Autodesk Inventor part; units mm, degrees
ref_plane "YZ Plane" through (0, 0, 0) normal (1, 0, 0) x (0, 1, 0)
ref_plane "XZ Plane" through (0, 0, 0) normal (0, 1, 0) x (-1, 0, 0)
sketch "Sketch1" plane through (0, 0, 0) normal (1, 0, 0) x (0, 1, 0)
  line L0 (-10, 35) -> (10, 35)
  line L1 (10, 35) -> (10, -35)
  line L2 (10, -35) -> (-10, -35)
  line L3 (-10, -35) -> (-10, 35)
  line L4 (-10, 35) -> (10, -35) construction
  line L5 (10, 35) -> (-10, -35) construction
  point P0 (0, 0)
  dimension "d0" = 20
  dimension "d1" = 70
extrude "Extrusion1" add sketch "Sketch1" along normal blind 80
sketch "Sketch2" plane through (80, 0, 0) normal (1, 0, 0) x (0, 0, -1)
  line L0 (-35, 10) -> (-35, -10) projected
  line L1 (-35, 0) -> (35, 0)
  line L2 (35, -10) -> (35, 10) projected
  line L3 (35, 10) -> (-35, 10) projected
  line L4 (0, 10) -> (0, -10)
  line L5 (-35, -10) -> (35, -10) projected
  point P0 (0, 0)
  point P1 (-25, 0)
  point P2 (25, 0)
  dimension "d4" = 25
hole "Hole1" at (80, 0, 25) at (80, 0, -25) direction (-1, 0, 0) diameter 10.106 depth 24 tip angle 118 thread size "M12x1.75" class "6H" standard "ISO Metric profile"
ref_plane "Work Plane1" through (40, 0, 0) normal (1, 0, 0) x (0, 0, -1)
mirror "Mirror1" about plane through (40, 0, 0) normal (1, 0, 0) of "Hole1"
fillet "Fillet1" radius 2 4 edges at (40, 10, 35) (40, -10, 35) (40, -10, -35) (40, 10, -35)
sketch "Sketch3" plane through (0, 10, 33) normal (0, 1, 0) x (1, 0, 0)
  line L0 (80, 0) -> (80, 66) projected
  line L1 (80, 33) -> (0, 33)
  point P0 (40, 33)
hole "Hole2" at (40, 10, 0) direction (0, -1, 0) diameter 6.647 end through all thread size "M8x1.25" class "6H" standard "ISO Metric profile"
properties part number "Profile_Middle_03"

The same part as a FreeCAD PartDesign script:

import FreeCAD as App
import Part
import Sketcher


def edges_at(feature, points):
    """Names of the edges that pass closest to the given points."""
    edges = feature.Shape.Edges
    near = lambda p: min(range(len(edges)), key=lambda i: edges[i].distToShape(Part.Vertex(*p))[0])
    return sorted({f"Edge{near(p) + 1}" for p in points})

doc = App.newDocument("Part")
body = doc.addObject("PartDesign::Body", "Body")

# Sketch on YZ plane
sketch1 = body.newObject("Sketcher::SketchObject", "Sketch")
sketch1.AttachmentSupport = (doc.getObject("YZ_Plane"), [""])
sketch1.MapMode = "FlatFace"
sketch1.addGeometry([
    Part.LineSegment(App.Vector(10, 35, 0), App.Vector(-10, 35, 0)),
    Part.LineSegment(App.Vector(-10, 35, 0), App.Vector(-10, -35, 0)),
    Part.LineSegment(App.Vector(-10, -35, 0), App.Vector(10, -35, 0)),
    Part.LineSegment(App.Vector(10, -35, 0), App.Vector(10, 35, 0)),
], False)
sketch1.addConstraint([
    Sketcher.Constraint("Coincident", 0, 2, 1, 1),
    Sketcher.Constraint("Coincident", 1, 2, 2, 1),
    Sketcher.Constraint("Coincident", 2, 2, 3, 1),
    Sketcher.Constraint("Coincident", 3, 2, 0, 1),
    Sketcher.Constraint("Horizontal", 0),
    Sketcher.Constraint("Vertical", 1),
    Sketcher.Constraint("Horizontal", 2),
    Sketcher.Constraint("Vertical", 3),
    Sketcher.Constraint("Symmetric", 0, 2, 2, 2, -1, 1),
    Sketcher.Constraint("DistanceX", 0, 2, 0, 1, 20.0),
    Sketcher.Constraint("DistanceY", 1, 2, 1, 1, 70.0),
])
pad1 = body.newObject("PartDesign::Pad", "Pad")
pad1.Profile = sketch1
pad1.Length = 80

# Sketch on YZ plane
sketch2 = body.newObject("Sketcher::SketchObject", "Sketch001")
sketch2.AttachmentSupport = (doc.getObject("YZ_Plane"), [""])
sketch2.MapMode = "FlatFace"
sketch2.AttachmentOffset = App.Placement(App.Vector(0, 0, 80), App.Rotation())
sketch2.addGeometry([
    Part.Circle(App.Vector(0, 25, 0), App.Vector(0, 0, 1), 5.053),
    Part.Circle(App.Vector(0, -25, 0), App.Vector(0, 0, 1), 5.053),
], False)
sketch2.addConstraint([
    Sketcher.Constraint("Equal", 0, 1),
    Sketcher.Constraint("Symmetric", 0, 3, 1, 3, -1, 1),
    Sketcher.Constraint("PointOnObject", 0, 3, -2),
    Sketcher.Constraint("Diameter", 0, 10.106),
    Sketcher.Constraint("DistanceY", -1, 1, 0, 3, 25.0),
])
doc.recompute()
hole = body.newObject("PartDesign::Hole", "Hole")
hole.Profile = sketch2
hole.ThreadType = "None"
hole.Diameter = 10.106
hole.DepthType = "Dimension"
hole.Depth = 24
hole.DrillPoint = "Angled"
hole.DrillPointAngle = 118
doc.recompute()

datumplane = body.newObject("PartDesign::Plane", "DatumPlane")
datumplane.AttachmentSupport = (doc.getObject("YZ_Plane"), [""])
datumplane.MapMode = "FlatFace"
datumplane.AttachmentOffset = App.Placement(App.Vector(0, 0, 40), App.Rotation())
mirrored = body.newObject("PartDesign::Mirrored", "Mirrored")
mirrored.Originals = [hole]
mirrored.MirrorPlane = (datumplane, [""])
body.Tip = mirrored
doc.recompute()

fillet = body.newObject("PartDesign::Fillet", "Fillet")
fillet.Base = (mirrored, edges_at(mirrored, [
    (40, 10, 35),
    (40, -10, 35),
    (40, -10, -35),
    (40, 10, -35),
]))
fillet.Radius = 2

# Sketch on XZ plane
sketch3 = body.newObject("Sketcher::SketchObject", "Sketch002")
sketch3.AttachmentSupport = (doc.getObject("XZ_Plane"), [""])
sketch3.MapMode = "FlatFace"
sketch3.AttachmentOffset = App.Placement(App.Vector(0, 0, -10), App.Rotation())
sketch3.addGeometry(Part.Circle(App.Vector(40, 0, 0), App.Vector(0, 0, 1), 3.3235), False)
sketch3.addConstraint([
    Sketcher.Constraint("PointOnObject", 0, 3, -1),
    Sketcher.Constraint("Diameter", 0, 6.647),
    Sketcher.Constraint("DistanceX", -1, 1, 0, 3, 40.0),
])
doc.recompute()
hole2 = body.newObject("PartDesign::Hole", "Hole001")
hole2.Profile = sketch3
hole2.ThreadType = "None"
hole2.Diameter = 6.647
hole2.DepthType = "ThroughAll"
hole2.Reversed = True

doc.recompute()
